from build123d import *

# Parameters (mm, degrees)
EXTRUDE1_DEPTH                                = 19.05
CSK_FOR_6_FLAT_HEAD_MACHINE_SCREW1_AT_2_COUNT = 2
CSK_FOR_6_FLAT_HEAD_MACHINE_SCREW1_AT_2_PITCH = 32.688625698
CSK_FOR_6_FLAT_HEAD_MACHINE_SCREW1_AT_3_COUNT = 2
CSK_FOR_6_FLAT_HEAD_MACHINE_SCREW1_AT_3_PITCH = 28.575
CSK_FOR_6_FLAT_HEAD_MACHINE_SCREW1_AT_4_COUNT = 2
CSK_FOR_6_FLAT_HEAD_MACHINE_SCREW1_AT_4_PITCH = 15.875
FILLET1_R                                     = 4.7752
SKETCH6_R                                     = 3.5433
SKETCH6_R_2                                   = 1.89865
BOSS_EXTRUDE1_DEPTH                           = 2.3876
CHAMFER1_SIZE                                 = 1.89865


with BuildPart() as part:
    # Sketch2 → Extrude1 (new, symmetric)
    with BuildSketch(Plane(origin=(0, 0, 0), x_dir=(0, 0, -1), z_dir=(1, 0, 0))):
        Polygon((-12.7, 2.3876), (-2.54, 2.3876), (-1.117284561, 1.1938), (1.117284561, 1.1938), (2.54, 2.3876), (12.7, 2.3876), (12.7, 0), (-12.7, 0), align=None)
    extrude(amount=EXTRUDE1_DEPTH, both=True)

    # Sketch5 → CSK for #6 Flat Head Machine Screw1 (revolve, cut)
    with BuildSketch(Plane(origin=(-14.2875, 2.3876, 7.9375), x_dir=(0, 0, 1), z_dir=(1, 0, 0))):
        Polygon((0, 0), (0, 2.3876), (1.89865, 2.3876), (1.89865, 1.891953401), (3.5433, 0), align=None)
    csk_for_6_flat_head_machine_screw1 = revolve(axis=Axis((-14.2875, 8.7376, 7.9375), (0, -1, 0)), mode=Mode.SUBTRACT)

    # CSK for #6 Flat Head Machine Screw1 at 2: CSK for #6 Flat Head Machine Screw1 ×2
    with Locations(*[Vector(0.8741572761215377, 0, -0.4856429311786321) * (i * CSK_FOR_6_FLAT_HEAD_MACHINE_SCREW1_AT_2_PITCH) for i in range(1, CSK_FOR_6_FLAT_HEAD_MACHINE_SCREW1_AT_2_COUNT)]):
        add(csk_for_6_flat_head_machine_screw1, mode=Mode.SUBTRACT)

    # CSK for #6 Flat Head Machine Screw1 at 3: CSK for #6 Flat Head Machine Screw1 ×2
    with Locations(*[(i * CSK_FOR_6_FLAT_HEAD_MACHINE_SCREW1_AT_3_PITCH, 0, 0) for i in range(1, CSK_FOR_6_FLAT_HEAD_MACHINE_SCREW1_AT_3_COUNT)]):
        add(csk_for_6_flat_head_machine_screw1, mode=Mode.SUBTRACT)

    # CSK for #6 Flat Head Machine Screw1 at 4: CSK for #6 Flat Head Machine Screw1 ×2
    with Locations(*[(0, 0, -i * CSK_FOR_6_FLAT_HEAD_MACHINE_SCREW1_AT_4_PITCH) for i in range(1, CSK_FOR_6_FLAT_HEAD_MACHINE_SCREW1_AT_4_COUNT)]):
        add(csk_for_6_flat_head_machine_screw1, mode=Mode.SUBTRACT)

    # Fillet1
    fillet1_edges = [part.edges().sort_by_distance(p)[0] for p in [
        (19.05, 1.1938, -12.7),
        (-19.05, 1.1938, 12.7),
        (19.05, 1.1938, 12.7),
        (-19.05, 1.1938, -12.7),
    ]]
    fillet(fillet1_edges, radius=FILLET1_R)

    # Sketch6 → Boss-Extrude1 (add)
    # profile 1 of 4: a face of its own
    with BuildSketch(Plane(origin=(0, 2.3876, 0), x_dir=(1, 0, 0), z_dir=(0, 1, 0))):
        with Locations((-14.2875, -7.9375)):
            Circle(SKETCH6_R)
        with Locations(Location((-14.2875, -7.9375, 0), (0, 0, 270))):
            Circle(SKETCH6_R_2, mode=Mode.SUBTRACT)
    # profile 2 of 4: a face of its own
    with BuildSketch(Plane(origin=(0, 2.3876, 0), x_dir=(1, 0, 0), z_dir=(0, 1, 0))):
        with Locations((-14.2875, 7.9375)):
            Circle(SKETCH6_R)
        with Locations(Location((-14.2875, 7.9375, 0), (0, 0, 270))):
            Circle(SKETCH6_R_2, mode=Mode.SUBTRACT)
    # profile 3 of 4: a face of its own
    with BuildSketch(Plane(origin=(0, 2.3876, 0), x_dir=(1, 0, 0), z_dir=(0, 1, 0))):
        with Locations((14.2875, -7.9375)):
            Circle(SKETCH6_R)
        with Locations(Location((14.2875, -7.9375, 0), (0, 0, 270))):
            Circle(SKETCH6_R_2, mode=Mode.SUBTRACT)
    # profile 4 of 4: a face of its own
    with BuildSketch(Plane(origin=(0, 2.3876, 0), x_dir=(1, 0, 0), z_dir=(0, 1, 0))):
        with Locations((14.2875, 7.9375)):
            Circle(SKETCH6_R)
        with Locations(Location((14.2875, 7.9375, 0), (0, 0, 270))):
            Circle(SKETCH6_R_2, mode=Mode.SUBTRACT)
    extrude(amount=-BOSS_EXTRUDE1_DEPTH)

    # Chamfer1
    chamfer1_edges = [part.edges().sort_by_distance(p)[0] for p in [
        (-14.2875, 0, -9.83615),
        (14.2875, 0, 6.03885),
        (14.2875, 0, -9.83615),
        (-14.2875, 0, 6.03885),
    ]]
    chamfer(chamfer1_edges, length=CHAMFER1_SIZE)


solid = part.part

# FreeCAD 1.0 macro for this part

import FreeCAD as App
import Part
import Sketcher
from FreeCAD import Vector
Q = App.Units.Quantity


def edges_at(feature, points):
    """Names of the edges that pass closest to the given points."""
    edges = feature.Shape.Edges
    near = lambda p: min(range(len(edges)), key=lambda i: edges[i].distToShape(Part.Vertex(*p))[0])
    return sorted({f"Edge{near(p) + 1}" for p in points})


def add_polygon(sketch, points):
    """Adds a closed chain of lines whose ends are joined by coincident constraints."""
    first, n = sketch.GeometryCount, len(points)
    for a, b in zip(points, points[1:] + points[:1]):
        sketch.addGeometry(Part.LineSegment(App.Vector(*a, 0), App.Vector(*b, 0)), False)
    for i in range(n):
        sketch.addConstraint(Sketcher.Constraint("Coincident", first + i, 2, first + (i + 1) % n, 1))

doc = App.newDocument("Part")
body = doc.addObject("PartDesign::Body", "Body")

# Sketch on YZ plane
sketch1 = doc.addObject("Sketcher::SketchObject", "Sketch")
body.addObject(sketch1)
sketch1.AttachmentSupport = (doc.YZ_Plane, [""])
sketch1.MapMode = "FlatFace"
add_polygon(sketch1, [(2.4, 2.5), (2.4, 12.7), (0, 12.7), (0, -12.7), (2.4, -12.7), (2.4, -2.5), (1.2, -1.1), (1.2, 1.1)])  # lines 0-7
sketch1.addConstraint([
    Sketcher.Constraint("Vertical", 0),
    Sketcher.Constraint("Horizontal", 1),
    Sketcher.Constraint("Vertical", 2),
    Sketcher.Constraint("Horizontal", 3),
    Sketcher.Constraint("Vertical", 4),
    Sketcher.Constraint("Vertical", 6),
    Sketcher.Constraint("Symmetric", 1, 2, 2, 2, -1, 1),
    Sketcher.Constraint("Symmetric", 4, 2, 7, 2, -1),
    Sketcher.Constraint("Equal", 5, 7),
    Sketcher.Constraint("DistanceY", 2, 2, 2, 1, Q("1 in")),
    Sketcher.Constraint("DistanceY", 0, 1, 0, 2, Q("0.4 in")),
    Sketcher.Constraint("Angle", 5, Q("130 deg")),
    Sketcher.Constraint("DistanceX", 1, 2, 1, 1, Q("0.094 in")),
    Sketcher.Constraint("DistanceX", -1, 1, 5, 2, Q("0.047 in")),
])
pad1 = doc.addObject("PartDesign::Pad", "Pad")
body.addObject(pad1)
pad1.Profile = sketch1
pad1.Length = Q("1.5 in")
pad1.Midplane = True

# Sketch on YZ plane
sketch2 = doc.addObject("Sketcher::SketchObject", "Sketch001")
body.addObject(sketch2)
sketch2.AttachmentSupport = (doc.YZ_Plane, [""])
sketch2.MapMode = "FlatFace"
sketch2.AttachmentOffset = App.Placement(Vector(0, 0, -0.5625 * 25.4), App.Rotation())
add_polygon(sketch2, [(0, 7.94), (2.39, 7.94), (2.39, 11.48), (0.5, 9.84), (0, 9.84)])  # lines 0-4
sketch2.addGeometry(Part.LineSegment(Vector(2.39, 7.94, 0), Vector(0, 7.94, 0)), True)  # axis
sketch2.addConstraint([
    Sketcher.Constraint("Horizontal", 0),
    Sketcher.Constraint("Vertical", 1),
    Sketcher.Constraint("Horizontal", 3),
    Sketcher.Constraint("Vertical", 4),
    Sketcher.Constraint("Horizontal", 5),
    Sketcher.Constraint("Coincident", 5, 1, 0, 2),
    Sketcher.Constraint("PointOnObject", 3, 2, -2),
    Sketcher.Constraint("PointOnObject", 5, 2, -2),
    Sketcher.Constraint("Angle", 2, Q("-139 deg")),
    Sketcher.Constraint("DistanceX", 0, 1, 0, 2, Q("0.094 in")),
    Sketcher.Constraint("DistanceY", 1, 1, 1, 2, Q("0.1395 in")),
    Sketcher.Constraint("DistanceY", -1, 1, 0, 2, Q("0.3125 in")),
    Sketcher.Constraint("DistanceY", 4, 2, 4, 1, 1.89865),
])
groove = doc.addObject("PartDesign::Groove", "Groove")
body.addObject(groove)
groove.Profile = sketch2
groove.ReferenceAxis = (sketch2, ["Axis0"])
groove.Angle = 360
doc.recompute()

datumline = doc.addObject("PartDesign::Line", "DatumLine")
body.addObject(datumline)
datumline.Placement = App.Placement(Vector(0, 0, 0), App.Rotation(Vector(0, 0, 1), Vector(0.874157276, 0, -0.485642931)))
linearpattern = doc.addObject("PartDesign::LinearPattern", "LinearPattern")
body.addObject(linearpattern)
linearpattern.Originals = [groove]
linearpattern.Direction = (datumline, [""])
linearpattern.Mode = "offset"
linearpattern.Offset = 32.688626
linearpattern.Occurrences = 2
body.Tip = linearpattern
doc.recompute()

linearpattern2 = doc.addObject("PartDesign::LinearPattern", "LinearPattern001")
body.addObject(linearpattern2)
linearpattern2.Originals = [groove]
linearpattern2.Direction = (doc.X_Axis, [""])
linearpattern2.Mode = "offset"
linearpattern2.Offset = Q("1.125 in")
linearpattern2.Occurrences = 2
body.Tip = linearpattern2
doc.recompute()

linearpattern3 = doc.addObject("PartDesign::LinearPattern", "LinearPattern002")
body.addObject(linearpattern3)
linearpattern3.Originals = [groove]
linearpattern3.Direction = (doc.Z_Axis, [""])
linearpattern3.Mode = "offset"
linearpattern3.Offset = Q("0.625 in")
linearpattern3.Occurrences = 2
linearpattern3.Reversed = True
body.Tip = linearpattern3
doc.recompute()

fillet = doc.addObject("PartDesign::Fillet", "Fillet")
body.addObject(fillet)
fillet.Base = (linearpattern3, edges_at(linearpattern3, [
    (19.05, 1.194, -12.7),
    (-19.05, 1.194, 12.7),
    (19.05, 1.194, 12.7),
    (-19.05, 1.194, -12.7),
]))
fillet.Radius = Q("0.188 in")

# Sketch on XZ plane
sketch3 = doc.addObject("Sketcher::SketchObject", "Sketch002")
body.addObject(sketch3)
sketch3.AttachmentSupport = (doc.XZ_Plane, [""])
sketch3.MapMode = "FlatFace"
sketch3.AttachmentOffset = App.Placement(Vector(0, 0, -0.094 * 25.4), App.Rotation())
sketch3.addGeometry([
    Part.Circle(Vector(-14.3, 7.9, 0), Vector(0, 0, 1), 3.5),  # 0
    Part.Circle(Vector(-14.3, 7.9, 0), Vector(0, 0, 1), 1.9),  # 1
    Part.Circle(Vector(-14.3, -7.9, 0), Vector(0, 0, 1), 3.5),  # 2
    Part.Circle(Vector(-14.3, -7.9, 0), Vector(0, 0, 1), 1.9),  # 3
    Part.Circle(Vector(14.3, 7.9, 0), Vector(0, 0, 1), 3.5),  # 4
    Part.Circle(Vector(14.3, 7.9, 0), Vector(0, 0, 1), 1.9),  # 5
    Part.Circle(Vector(14.3, -7.9, 0), Vector(0, 0, 1), 3.5),  # 6
    Part.Circle(Vector(14.3, -7.9, 0), Vector(0, 0, 1), 1.9),  # 7
], False)
sketch3.addConstraint([
    Sketcher.Constraint("Coincident", 1, 3, 0, 3),
    Sketcher.Constraint("Coincident", 3, 3, 2, 3),
    Sketcher.Constraint("Coincident", 5, 3, 4, 3),
    Sketcher.Constraint("Coincident", 7, 3, 6, 3),
    Sketcher.Constraint("Equal", 0, 2),
    Sketcher.Constraint("Equal", 1, 3),
    Sketcher.Constraint("Equal", 2, 4),
    Sketcher.Constraint("Equal", 3, 5),
    Sketcher.Constraint("Equal", 4, 6),
    Sketcher.Constraint("Equal", 5, 7),
    Sketcher.Constraint("Symmetric", 2, 3, 4, 3, -1, 1),
    Sketcher.Constraint("Symmetric", 0, 3, 6, 3, -1, 1),
    Sketcher.Constraint("Symmetric", 0, 3, 4, 3, -2),
    Sketcher.Constraint("Diameter", 0, Q("0.279 in")),
    Sketcher.Constraint("Diameter", 1, Q("0.1495 in")),
    Sketcher.Constraint("DistanceX", 0, 3, -1, 1, Q("0.5625 in")),
    Sketcher.Constraint("DistanceY", -1, 1, 0, 3, Q("0.3125 in")),
])
pad2 = doc.addObject("PartDesign::Pad", "Pad001")
body.addObject(pad2)
pad2.Profile = sketch3
pad2.Length = Q("0.094 in")
doc.recompute()

chamfer = doc.addObject("PartDesign::Chamfer", "Chamfer")
body.addObject(chamfer)
chamfer.Base = (pad2, edges_at(pad2, [
    (-14.287, 0, -9.836),
    (14.287, 0, 6.039),
    (14.287, 0, -9.836),
    (-14.287, 0, 6.039),
]))
chamfer.Size = 1.89865

doc.recompute()
